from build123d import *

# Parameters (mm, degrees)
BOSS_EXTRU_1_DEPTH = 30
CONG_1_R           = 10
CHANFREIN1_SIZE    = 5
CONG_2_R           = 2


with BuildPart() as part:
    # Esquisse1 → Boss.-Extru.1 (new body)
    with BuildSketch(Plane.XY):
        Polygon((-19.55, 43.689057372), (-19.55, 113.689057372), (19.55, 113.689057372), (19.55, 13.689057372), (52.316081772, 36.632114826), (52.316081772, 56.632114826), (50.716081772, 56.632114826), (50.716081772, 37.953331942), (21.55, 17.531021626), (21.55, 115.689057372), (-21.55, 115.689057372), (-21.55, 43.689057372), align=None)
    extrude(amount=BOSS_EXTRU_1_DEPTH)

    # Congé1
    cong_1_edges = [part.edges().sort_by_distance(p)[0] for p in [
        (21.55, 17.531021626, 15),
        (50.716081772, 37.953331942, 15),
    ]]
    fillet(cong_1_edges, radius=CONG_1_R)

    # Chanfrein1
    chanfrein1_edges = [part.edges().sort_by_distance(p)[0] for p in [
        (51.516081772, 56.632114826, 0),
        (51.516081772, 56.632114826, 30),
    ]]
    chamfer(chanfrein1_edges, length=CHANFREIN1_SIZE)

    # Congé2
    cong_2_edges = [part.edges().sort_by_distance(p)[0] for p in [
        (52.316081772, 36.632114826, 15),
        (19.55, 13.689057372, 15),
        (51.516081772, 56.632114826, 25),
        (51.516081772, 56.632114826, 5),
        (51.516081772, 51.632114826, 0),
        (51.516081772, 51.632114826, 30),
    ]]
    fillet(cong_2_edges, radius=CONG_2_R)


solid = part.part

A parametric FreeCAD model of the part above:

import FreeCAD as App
import Part
import Sketcher

V = App.Vector
Q = App.Units.Quantity


def edges_at(feature, points):
    """Names of the edges that pass closest to the given points."""
    edges = feature.Shape.Edges
    near = lambda p: min(range(len(edges)), key=lambda i: edges[i].distToShape(Part.Vertex(*p))[0])
    return sorted({f"Edge{near(p) + 1}" for p in points})

doc = App.newDocument("Part")
body = doc.addObject("PartDesign::Body", "Body")

# Sketch on XY plane
sketch1 = doc.addObject("Sketcher::SketchObject", "Sketch")
body.addObject(sketch1)
sketch1.AttachmentSupport = (doc.XY_Plane, [""])
sketch1.MapMode = "FlatFace"
sketch1.addGeometry([
    Part.LineSegment(V(-19.55, 43.689057, 0), V(-19.55, 113.689057, 0)),  # 0
    Part.LineSegment(V(-19.55, 113.689057, 0), V(19.55, 113.689057, 0)),  # 1
    Part.LineSegment(V(19.55, 113.689057, 0), V(19.55, 13.689057, 0)),  # 2
    Part.LineSegment(V(19.55, 13.689057, 0), V(52.316082, 36.632115, 0)),  # 3
    Part.LineSegment(V(52.316082, 36.632115, 0), V(52.316082, 56.632115, 0)),  # 4
    Part.LineSegment(V(52.316082, 56.632115, 0), V(50.716082, 56.632115, 0)),  # 5
    Part.LineSegment(V(50.716082, 56.632115, 0), V(50.716082, 37.953332, 0)),  # 6
    Part.LineSegment(V(50.716082, 37.953332, 0), V(21.55, 17.531022, 0)),  # 7
    Part.LineSegment(V(21.55, 17.531022, 0), V(21.55, 115.689057, 0)),  # 8
    Part.LineSegment(V(21.55, 115.689057, 0), V(-21.55, 115.689057, 0)),  # 9
    Part.LineSegment(V(-21.55, 115.689057, 0), V(-21.55, 43.689057, 0)),  # 10
    Part.LineSegment(V(-21.55, 43.689057, 0), V(-19.55, 43.689057, 0)),  # 11
], False)
sketch1.addConstraint([
    Sketcher.Constraint("Coincident", 0, 2, 1, 1),
    Sketcher.Constraint("Coincident", 1, 2, 2, 1),
    Sketcher.Constraint("Coincident", 2, 2, 3, 1),
    Sketcher.Constraint("Coincident", 3, 2, 4, 1),
    Sketcher.Constraint("Coincident", 4, 2, 5, 1),
    Sketcher.Constraint("Coincident", 5, 2, 6, 1),
    Sketcher.Constraint("Coincident", 6, 2, 7, 1),
    Sketcher.Constraint("Coincident", 7, 2, 8, 1),
    Sketcher.Constraint("Coincident", 8, 2, 9, 1),
    Sketcher.Constraint("Coincident", 9, 2, 10, 1),
    Sketcher.Constraint("Coincident", 10, 2, 11, 1),
    Sketcher.Constraint("Coincident", 11, 2, 0, 1),
    Sketcher.Constraint("Vertical", 0),
    Sketcher.Constraint("Horizontal", 1),
    Sketcher.Constraint("Vertical", 2),
    Sketcher.Constraint("Vertical", 4),
    Sketcher.Constraint("Horizontal", 5),
    Sketcher.Constraint("Vertical", 6),
    Sketcher.Constraint("Vertical", 8),
    Sketcher.Constraint("Horizontal", 9),
    Sketcher.Constraint("Vertical", 10),
    Sketcher.Constraint("Horizontal", 11),
    Sketcher.Constraint("Parallel", 3, 7),
    Sketcher.Constraint("DistanceX", 11, 1, 11, 2, Q("2 mm")),
    Sketcher.Constraint("DistanceY", 0, 1, 0, 2, Q("70 mm")),
    Sketcher.Constraint("DistanceY", 2, 2, 2, 1, Q("100 mm")),
    Sketcher.Constraint("DistanceY", 4, 1, 4, 2, Q("20 mm")),
    Sketcher.Constraint("DistanceY", 10, 2, 10, 1, Q("72 mm")),
    Sketcher.Constraint("Angle", 3, Q("35 deg")),
    Sketcher.Constraint("Distance", 3, Q("40 mm")),
    Sketcher.Constraint("DistanceX", 1, 1, 1, 2, Q("39.1 mm")),
    Sketcher.Constraint("DistanceX", 5, 2, 5, 1, Q("1.6 mm")),
    Sketcher.Constraint("DistanceX", 9, 2, 9, 1, Q("43.1 mm")),
    Sketcher.Constraint("DistanceX", 0, 2, -1, 1, Q("19.55 mm")),
    Sketcher.Constraint("DistanceY", 6, 2, 6, 1, Q("18.678783 mm")),
    Sketcher.Constraint("DistanceY", -1, 1, 6, 2, Q("37.953332 mm")),
])
pad1 = doc.addObject("PartDesign::Pad", "Pad")
body.addObject(pad1)
pad1.Profile = sketch1
pad1.Length = 30
doc.recompute()

fillet = doc.addObject("PartDesign::Fillet", "Fillet")
body.addObject(fillet)
fillet.Base = (pad1, edges_at(pad1, [(21.55, 17.531, 15), (50.716, 37.953, 15)]))
fillet.Radius = 10
doc.recompute()

chamfer = doc.addObject("PartDesign::Chamfer", "Chamfer")
body.addObject(chamfer)
chamfer.Base = (fillet, edges_at(fillet, [(51.516, 56.632, 0), (51.516, 56.632, 30)]))
chamfer.Size = 5
doc.recompute()

fillet2 = doc.addObject("PartDesign::Fillet", "Fillet001")
body.addObject(fillet2)
fillet2.Base = (chamfer, edges_at(chamfer, [
    (52.316, 36.632, 15),
    (19.55, 13.689, 15),
    (51.516, 56.632, 25),
    (51.516, 56.632, 5),
    (51.516, 51.632, 0),
    (51.516, 51.632, 30),
]))
fillet2.Radius = 2

doc.recompute()
